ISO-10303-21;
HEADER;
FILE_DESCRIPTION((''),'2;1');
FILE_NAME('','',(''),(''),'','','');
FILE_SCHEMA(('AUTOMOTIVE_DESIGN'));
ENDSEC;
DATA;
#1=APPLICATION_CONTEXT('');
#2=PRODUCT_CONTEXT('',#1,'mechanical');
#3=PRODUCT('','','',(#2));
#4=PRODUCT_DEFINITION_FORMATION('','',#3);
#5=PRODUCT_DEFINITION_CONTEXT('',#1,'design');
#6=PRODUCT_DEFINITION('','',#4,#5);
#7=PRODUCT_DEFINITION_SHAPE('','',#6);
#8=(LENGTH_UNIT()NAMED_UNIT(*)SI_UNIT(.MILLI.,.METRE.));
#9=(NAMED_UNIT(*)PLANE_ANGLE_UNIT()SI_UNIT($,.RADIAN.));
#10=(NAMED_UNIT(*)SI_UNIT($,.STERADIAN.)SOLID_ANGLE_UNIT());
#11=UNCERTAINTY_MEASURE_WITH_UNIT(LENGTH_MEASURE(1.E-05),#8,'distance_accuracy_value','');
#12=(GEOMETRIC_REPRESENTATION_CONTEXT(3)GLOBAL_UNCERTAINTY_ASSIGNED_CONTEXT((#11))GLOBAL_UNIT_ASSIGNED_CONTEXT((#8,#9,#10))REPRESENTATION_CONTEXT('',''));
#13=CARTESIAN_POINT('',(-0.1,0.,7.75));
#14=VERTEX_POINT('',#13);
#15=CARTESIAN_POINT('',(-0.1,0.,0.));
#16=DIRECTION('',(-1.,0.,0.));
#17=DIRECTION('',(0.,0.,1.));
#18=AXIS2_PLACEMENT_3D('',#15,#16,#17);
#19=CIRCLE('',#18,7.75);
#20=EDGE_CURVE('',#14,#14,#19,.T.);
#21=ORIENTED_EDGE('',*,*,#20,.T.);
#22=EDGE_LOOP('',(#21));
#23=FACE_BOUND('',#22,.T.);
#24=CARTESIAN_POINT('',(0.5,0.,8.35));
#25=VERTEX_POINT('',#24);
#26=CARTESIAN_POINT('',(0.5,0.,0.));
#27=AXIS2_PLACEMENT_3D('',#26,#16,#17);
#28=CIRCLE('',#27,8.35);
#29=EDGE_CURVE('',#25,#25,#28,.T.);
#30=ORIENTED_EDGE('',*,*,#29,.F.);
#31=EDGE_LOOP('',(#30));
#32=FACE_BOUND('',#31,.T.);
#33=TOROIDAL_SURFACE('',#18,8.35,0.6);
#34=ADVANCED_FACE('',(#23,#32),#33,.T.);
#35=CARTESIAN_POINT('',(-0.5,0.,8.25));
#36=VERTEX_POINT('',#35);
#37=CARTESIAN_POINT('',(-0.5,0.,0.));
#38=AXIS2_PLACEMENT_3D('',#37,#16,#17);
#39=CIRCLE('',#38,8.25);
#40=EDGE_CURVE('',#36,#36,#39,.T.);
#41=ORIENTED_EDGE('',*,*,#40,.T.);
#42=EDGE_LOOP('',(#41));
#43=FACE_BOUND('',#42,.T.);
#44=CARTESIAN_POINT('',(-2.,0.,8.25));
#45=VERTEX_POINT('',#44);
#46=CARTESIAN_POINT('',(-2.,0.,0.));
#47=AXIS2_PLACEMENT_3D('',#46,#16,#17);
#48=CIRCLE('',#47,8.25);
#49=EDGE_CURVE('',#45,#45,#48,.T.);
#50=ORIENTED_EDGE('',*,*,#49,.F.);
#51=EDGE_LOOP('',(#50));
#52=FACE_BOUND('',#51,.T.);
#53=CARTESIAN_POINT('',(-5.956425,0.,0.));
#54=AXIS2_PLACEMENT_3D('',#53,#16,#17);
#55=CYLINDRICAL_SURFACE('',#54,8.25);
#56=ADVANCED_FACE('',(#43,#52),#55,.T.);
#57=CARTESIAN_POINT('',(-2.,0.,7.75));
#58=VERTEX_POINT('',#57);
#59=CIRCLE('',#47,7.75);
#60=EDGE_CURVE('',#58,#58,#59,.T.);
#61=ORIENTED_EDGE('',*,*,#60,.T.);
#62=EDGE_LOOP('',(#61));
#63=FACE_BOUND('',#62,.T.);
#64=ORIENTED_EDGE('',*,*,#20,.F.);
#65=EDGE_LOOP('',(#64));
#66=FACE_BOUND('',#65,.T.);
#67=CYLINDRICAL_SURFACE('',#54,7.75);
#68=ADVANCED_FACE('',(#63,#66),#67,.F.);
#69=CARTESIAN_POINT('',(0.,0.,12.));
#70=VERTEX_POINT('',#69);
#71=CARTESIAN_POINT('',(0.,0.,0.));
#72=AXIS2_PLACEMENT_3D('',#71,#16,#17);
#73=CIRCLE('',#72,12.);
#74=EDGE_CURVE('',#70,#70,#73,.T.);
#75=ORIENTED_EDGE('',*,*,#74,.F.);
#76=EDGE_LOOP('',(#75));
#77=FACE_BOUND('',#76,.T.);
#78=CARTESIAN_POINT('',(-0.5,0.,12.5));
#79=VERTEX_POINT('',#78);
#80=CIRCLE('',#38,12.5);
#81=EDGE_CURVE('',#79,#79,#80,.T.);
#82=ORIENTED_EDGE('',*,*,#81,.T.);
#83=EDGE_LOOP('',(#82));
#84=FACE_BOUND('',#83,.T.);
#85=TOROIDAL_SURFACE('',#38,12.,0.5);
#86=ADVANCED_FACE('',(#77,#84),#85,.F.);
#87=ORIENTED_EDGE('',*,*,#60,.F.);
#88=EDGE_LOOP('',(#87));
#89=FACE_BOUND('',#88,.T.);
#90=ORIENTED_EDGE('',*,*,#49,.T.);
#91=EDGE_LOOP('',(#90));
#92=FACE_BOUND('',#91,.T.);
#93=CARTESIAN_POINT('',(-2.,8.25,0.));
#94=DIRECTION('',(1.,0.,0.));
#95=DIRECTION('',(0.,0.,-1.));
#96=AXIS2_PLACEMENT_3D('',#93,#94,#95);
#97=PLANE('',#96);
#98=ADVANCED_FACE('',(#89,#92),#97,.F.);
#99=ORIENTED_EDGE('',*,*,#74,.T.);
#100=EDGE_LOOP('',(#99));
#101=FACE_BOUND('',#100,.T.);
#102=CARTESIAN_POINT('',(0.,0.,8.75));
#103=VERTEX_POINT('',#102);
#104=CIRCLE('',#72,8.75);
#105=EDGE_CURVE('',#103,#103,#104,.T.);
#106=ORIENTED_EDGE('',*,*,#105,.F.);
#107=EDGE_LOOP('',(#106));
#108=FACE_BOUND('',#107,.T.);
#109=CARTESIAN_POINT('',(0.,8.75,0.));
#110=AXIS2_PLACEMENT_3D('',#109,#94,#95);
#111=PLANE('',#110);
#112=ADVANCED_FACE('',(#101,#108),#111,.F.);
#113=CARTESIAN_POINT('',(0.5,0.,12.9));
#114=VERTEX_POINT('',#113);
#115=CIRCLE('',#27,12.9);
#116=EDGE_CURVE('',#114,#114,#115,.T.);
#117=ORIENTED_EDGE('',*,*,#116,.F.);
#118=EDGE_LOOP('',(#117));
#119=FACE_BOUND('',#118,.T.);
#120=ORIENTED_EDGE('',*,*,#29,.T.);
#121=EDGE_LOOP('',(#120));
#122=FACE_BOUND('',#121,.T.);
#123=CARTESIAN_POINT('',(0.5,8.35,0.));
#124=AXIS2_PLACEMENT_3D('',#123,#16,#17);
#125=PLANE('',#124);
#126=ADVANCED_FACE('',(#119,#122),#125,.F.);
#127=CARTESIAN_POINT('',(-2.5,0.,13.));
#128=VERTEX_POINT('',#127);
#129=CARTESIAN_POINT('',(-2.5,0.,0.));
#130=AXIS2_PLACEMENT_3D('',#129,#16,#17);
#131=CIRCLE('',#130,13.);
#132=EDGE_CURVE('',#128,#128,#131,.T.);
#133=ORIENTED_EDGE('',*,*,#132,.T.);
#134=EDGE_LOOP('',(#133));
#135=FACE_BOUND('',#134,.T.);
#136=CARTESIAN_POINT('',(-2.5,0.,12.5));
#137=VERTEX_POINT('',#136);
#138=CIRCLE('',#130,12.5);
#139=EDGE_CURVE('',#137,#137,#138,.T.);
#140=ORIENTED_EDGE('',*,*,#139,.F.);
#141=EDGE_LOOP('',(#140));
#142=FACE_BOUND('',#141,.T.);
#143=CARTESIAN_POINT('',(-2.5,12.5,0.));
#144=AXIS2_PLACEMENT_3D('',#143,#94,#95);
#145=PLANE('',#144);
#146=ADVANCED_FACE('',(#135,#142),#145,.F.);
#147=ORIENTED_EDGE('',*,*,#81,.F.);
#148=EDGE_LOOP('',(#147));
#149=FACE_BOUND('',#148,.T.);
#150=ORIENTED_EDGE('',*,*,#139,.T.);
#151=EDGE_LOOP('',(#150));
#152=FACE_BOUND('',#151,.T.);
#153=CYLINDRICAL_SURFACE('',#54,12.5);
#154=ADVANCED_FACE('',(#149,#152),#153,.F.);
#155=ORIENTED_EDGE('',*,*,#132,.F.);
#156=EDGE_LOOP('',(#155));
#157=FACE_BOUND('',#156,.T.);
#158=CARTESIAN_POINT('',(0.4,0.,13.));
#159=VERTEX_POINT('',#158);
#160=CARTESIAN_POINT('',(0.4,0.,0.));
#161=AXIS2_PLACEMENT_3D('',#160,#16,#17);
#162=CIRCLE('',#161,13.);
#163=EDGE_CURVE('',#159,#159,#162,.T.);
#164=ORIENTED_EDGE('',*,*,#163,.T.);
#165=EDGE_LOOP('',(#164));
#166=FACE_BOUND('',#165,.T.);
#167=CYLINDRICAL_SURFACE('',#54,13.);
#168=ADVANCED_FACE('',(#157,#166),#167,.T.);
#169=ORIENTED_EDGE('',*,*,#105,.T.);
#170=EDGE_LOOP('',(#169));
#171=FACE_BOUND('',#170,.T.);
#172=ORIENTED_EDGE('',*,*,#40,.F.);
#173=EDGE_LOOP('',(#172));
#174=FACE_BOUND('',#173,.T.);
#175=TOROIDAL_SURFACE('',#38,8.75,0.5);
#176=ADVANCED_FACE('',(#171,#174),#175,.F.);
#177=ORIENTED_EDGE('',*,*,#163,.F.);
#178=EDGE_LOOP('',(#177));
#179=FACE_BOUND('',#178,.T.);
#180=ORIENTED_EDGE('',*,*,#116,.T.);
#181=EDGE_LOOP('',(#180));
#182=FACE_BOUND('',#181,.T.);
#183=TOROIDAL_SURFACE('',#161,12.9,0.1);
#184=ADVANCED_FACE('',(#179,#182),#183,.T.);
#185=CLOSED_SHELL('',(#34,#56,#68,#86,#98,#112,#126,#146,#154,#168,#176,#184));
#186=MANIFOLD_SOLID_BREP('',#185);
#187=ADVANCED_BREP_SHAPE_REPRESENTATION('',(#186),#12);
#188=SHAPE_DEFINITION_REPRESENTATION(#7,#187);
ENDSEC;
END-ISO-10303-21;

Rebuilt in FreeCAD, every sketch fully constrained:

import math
import FreeCAD as App
import Part
import Sketcher

V = App.Vector
Q = App.Units.Quantity

doc = App.newDocument("Part")
body = doc.addObject("PartDesign::Body", "Body")

# Sketch on XY plane
sketch1 = body.newObject("Sketcher::SketchObject", "Sketch")
sketch1.AttachmentSupport = (doc.getObject("XY_Plane"), [""])
sketch1.MapMode = "FlatFace"
sketch1.addGeometry(Part.LineSegment(V(0, 12, 0), V(0, 8.75, 0)), False)
sketch1.addGeometry(Part.ArcOfCircle(Part.Circle(V(-0.5, 8.75, 0), V(0, 0, 1), 0.5), math.radians(-90), math.radians(0)), False)
sketch1.addGeometry(Part.LineSegment(V(-0.5, 8.25, 0), V(-2, 8.25, 0)), False)
sketch1.addGeometry(Part.LineSegment(V(-2, 8.25, 0), V(-2, 7.75, 0)), False)
sketch1.addGeometry(Part.LineSegment(V(-2, 7.75, 0), V(-0.1, 7.75, 0)), False)
sketch1.addGeometry(Part.ArcOfCircle(Part.Circle(V(-0.1, 8.35, 0), V(0, 0, 1), 0.6), math.radians(-90), math.radians(0)), False)
sketch1.addGeometry(Part.LineSegment(V(0.5, 8.35, 0), V(0.5, 12.9, 0)), False)
sketch1.addGeometry(Part.ArcOfCircle(Part.Circle(V(0.4, 12.9, 0), V(0, 0, 1), 0.1), math.radians(0), math.radians(90)), False)
sketch1.addGeometry(Part.LineSegment(V(0.4, 13, 0), V(-2.5, 13, 0)), False)
sketch1.addGeometry(Part.LineSegment(V(-2.5, 13, 0), V(-2.5, 12.5, 0)), False)
sketch1.addGeometry(Part.LineSegment(V(-2.5, 12.5, 0), V(-0.5, 12.5, 0)), False)
sketch1.addGeometry(Part.ArcOfCircle(Part.Circle(V(-0.5, 12, 0), V(0, 0, 1), 0.5), math.radians(0), math.radians(90)), False)
sketch1.addConstraint(Sketcher.Constraint("Tangent", 0, 2, 1, 2))
sketch1.addConstraint(Sketcher.Constraint("Tangent", 1, 1, 2, 1))
sketch1.addConstraint(Sketcher.Constraint("Coincident", 2, 2, 3, 1))
sketch1.addConstraint(Sketcher.Constraint("Coincident", 3, 2, 4, 1))
sketch1.addConstraint(Sketcher.Constraint("Tangent", 4, 2, 5, 1))
sketch1.addConstraint(Sketcher.Constraint("Tangent", 5, 2, 6, 1))
sketch1.addConstraint(Sketcher.Constraint("Tangent", 6, 2, 7, 1))
sketch1.addConstraint(Sketcher.Constraint("Tangent", 7, 2, 8, 1))
sketch1.addConstraint(Sketcher.Constraint("Coincident", 8, 2, 9, 1))
sketch1.addConstraint(Sketcher.Constraint("Coincident", 9, 2, 10, 1))
sketch1.addConstraint(Sketcher.Constraint("Tangent", 10, 2, 11, 2))
sketch1.addConstraint(Sketcher.Constraint("Tangent", 11, 1, 0, 1))
sketch1.addConstraint(Sketcher.Constraint("Vertical", 0))
sketch1.addConstraint(Sketcher.Constraint("Horizontal", 2))
sketch1.addConstraint(Sketcher.Constraint("Vertical", 3))
sketch1.addConstraint(Sketcher.Constraint("Horizontal", 4))
sketch1.addConstraint(Sketcher.Constraint("Vertical", 6))
sketch1.addConstraint(Sketcher.Constraint("Horizontal", 8))
sketch1.addConstraint(Sketcher.Constraint("Vertical", 9))
sketch1.addConstraint(Sketcher.Constraint("Horizontal", 10))
sketch1.addConstraint(Sketcher.Constraint("Equal", 1, 11))
sketch1.addConstraint(Sketcher.Constraint("PointOnObject", 0, 2, -2))
sketch1.addConstraint(Sketcher.Constraint("Equal", 3, 9))
sketch1.addConstraint(Sketcher.Constraint("Radius", 1, Q("0.5 mm")))
sketch1.addConstraint(Sketcher.Constraint("Radius", 5, Q("0.6 mm")))
sketch1.addConstraint(Sketcher.Constraint("Radius", 7, Q("0.1 mm")))
sketch1.addConstraint(Sketcher.Constraint("DistanceX", 10, 1, 10, 2, Q("2 mm")))
sketch1.addConstraint(Sketcher.Constraint("DistanceX", 2, 2, 2, 1, Q("1.5 mm")))
sketch1.addConstraint(Sketcher.Constraint("DistanceX", 4, 1, 4, 2, Q("1.9 mm")))
sketch1.addConstraint(Sketcher.Constraint("DistanceY", 3, 2, 3, 1, Q("0.5 mm")))
sketch1.addConstraint(Sketcher.Constraint("DistanceY", -1, 1, 11, 3, Q("12 mm")))
sketch1.addConstraint(Sketcher.Constraint("DistanceY", 0, 2, 0, 1, Q("3.25 mm")))
revolution = body.newObject("PartDesign::Revolution", "Revolution")
revolution.Profile = sketch1
revolution.ReferenceAxis = (sketch1, ["H_Axis"])
revolution.Angle = 360

doc.recompute()
